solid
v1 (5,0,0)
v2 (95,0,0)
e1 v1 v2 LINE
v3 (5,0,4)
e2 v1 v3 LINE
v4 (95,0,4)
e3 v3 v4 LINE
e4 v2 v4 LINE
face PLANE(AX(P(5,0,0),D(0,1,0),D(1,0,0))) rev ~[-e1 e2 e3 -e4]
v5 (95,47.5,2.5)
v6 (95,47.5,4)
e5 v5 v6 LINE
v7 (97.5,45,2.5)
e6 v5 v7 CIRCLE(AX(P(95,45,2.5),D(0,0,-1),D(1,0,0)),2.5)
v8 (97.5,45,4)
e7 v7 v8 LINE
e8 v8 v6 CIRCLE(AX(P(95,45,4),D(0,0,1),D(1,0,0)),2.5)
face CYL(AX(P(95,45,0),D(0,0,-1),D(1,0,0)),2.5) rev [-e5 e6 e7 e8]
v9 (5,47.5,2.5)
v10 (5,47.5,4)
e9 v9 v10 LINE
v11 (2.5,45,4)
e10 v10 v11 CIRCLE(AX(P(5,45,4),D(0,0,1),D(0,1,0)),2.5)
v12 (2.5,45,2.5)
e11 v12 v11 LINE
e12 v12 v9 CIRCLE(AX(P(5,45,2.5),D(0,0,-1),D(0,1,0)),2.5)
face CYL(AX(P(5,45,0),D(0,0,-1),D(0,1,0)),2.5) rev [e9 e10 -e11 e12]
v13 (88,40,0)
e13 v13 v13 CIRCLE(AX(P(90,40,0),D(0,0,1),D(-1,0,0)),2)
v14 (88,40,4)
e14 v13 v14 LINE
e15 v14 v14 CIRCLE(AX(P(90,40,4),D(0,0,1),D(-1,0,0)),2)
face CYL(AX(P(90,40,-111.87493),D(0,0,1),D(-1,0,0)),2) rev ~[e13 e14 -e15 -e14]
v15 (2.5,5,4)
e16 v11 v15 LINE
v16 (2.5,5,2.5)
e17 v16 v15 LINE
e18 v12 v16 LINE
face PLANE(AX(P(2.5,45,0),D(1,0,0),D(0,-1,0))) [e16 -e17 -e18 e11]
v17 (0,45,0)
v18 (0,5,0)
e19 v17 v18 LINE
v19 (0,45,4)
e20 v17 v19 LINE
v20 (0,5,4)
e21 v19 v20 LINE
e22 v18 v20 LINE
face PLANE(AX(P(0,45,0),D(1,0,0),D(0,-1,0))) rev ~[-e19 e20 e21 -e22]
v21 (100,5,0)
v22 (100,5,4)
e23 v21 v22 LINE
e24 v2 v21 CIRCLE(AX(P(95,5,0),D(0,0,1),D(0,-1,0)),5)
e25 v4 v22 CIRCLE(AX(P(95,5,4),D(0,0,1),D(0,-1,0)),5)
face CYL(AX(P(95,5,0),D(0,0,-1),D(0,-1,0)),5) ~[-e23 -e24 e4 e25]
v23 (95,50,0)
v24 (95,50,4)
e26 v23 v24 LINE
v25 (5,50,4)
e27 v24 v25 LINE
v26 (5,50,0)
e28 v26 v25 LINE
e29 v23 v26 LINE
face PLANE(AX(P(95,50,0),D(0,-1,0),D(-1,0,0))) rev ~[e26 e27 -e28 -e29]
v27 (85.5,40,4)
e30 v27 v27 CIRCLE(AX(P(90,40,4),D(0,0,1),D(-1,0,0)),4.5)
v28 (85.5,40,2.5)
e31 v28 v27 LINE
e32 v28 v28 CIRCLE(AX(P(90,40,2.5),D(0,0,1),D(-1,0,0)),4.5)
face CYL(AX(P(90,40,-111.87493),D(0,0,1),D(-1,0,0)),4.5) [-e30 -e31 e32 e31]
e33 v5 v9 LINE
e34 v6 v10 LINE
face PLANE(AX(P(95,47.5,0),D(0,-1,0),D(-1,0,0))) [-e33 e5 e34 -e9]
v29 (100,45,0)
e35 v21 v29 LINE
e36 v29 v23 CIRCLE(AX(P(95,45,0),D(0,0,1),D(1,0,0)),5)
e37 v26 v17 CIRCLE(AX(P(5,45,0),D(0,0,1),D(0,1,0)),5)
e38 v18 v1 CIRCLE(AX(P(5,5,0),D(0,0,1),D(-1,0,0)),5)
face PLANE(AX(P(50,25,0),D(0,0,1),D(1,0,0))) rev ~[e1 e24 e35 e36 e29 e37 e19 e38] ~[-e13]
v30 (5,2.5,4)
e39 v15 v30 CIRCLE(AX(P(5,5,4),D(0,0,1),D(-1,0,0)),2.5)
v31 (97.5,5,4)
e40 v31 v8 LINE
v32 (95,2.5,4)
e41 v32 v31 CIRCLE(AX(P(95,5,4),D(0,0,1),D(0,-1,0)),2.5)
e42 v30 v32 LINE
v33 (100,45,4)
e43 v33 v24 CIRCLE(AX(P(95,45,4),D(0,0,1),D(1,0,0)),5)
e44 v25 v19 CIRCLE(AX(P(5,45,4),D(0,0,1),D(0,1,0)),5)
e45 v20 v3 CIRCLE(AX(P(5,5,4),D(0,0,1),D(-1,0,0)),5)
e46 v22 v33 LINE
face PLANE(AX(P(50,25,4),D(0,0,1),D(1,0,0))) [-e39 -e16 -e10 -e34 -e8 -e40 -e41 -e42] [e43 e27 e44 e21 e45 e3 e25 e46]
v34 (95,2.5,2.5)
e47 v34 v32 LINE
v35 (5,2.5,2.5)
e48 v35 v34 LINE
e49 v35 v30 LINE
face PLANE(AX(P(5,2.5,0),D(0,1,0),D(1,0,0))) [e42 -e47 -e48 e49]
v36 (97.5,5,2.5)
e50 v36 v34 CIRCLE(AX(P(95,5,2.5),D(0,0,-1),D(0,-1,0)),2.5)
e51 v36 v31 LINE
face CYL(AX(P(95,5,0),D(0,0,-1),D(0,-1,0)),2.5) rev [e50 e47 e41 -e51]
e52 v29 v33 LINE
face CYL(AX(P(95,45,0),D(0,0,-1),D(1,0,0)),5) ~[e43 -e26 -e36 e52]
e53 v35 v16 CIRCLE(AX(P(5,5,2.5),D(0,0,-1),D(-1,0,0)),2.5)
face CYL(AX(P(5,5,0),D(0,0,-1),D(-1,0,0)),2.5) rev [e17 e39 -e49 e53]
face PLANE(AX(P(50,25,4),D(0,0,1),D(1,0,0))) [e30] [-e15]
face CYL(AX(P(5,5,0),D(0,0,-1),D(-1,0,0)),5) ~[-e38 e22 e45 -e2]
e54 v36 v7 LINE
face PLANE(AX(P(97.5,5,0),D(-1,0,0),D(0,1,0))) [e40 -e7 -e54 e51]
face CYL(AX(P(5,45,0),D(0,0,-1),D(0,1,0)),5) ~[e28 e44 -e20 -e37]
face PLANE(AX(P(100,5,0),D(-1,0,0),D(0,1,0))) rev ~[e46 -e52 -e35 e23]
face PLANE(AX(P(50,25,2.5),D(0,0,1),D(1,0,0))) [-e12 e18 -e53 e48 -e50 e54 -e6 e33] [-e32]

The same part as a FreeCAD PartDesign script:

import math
import FreeCAD as App
import Part
import Sketcher


def faces_at(feature, points):
    """Names of the faces that lie closest to the given points."""
    faces = feature.Shape.Faces
    near = lambda p: min(range(len(faces)), key=lambda i: faces[i].distToShape(Part.Vertex(*p))[0])
    return sorted({f"Face{near(p) + 1}" for p in points})

doc = App.newDocument("Part")
params = doc.addObject("Spreadsheet::Sheet", "Params")
for row, (alias, value) in enumerate([
    ("sketch1_radius", "5 mm"),
    ("sketch1_width", "90 mm"),
    ("sketch1_height", "40 mm"),
    ("pad1_length", "4 mm"),
    ("sketch2_diameter", "4 mm"),
    ("hole_diameter", "4 mm"),
    ("thickness_wall", "2.5 mm"),
], start=1):
    params.set(f"A{row}", alias)
    params.set(f"B{row}", "=" + value)
    params.setAlias(f"B{row}", alias)

body = doc.addObject("PartDesign::Body", "Body")

sketch1 = body.newObject("Sketcher::SketchObject", "Sketch")
sketch1.AttachmentSupport = (doc.getObject("XY_Plane"), [""])
sketch1.MapMode = "FlatFace"
sketch1.addGeometry([
    Part.ArcOfCircle(Part.Circle(App.Vector(5, 5, 0), App.Vector(0, 0, 1), 5), math.radians(180), math.radians(270)),
    Part.LineSegment(App.Vector(5, 0, 0), App.Vector(95, 0, 0)),
    Part.ArcOfCircle(Part.Circle(App.Vector(95, 5, 0), App.Vector(0, 0, 1), 5), math.radians(-90), math.radians(0)),
    Part.LineSegment(App.Vector(100, 5, 0), App.Vector(100, 45, 0)),
    Part.ArcOfCircle(Part.Circle(App.Vector(95, 45, 0), App.Vector(0, 0, 1), 5), math.radians(0), math.radians(90)),
    Part.LineSegment(App.Vector(95, 50, 0), App.Vector(5, 50, 0)),
    Part.ArcOfCircle(Part.Circle(App.Vector(5, 45, 0), App.Vector(0, 0, 1), 5), math.radians(90), math.radians(180)),
    Part.LineSegment(App.Vector(0, 45, 0), App.Vector(0, 5, 0)),
], False)
sketch1.addConstraint([
    Sketcher.Constraint("Tangent", 0, 2, 1, 1),
    Sketcher.Constraint("Tangent", 1, 2, 2, 1),
    Sketcher.Constraint("Tangent", 2, 2, 3, 1),
    Sketcher.Constraint("Tangent", 3, 2, 4, 1),
    Sketcher.Constraint("Tangent", 4, 2, 5, 1),
    Sketcher.Constraint("Tangent", 5, 2, 6, 1),
    Sketcher.Constraint("Tangent", 6, 2, 7, 1),
    Sketcher.Constraint("Tangent", 7, 2, 0, 1),
    Sketcher.Constraint("Horizontal", 1),
    Sketcher.Constraint("Vertical", 3),
    Sketcher.Constraint("Horizontal", 5),
    Sketcher.Constraint("Vertical", 7),
    Sketcher.Constraint("Equal", 0, 2),
    Sketcher.Constraint("Equal", 2, 4),
    Sketcher.Constraint("Equal", 4, 6),
    Sketcher.Constraint("PointOnObject", 0, 2, -1),
    Sketcher.Constraint("PointOnObject", 6, 2, -2),
    Sketcher.Constraint("Radius", 0, 5.0),
    Sketcher.Constraint("DistanceX", 1, 1, 1, 2, 90.0),
    Sketcher.Constraint("DistanceY", 3, 1, 3, 2, 40.0),
])
sketch1.setExpression("Constraints[17]", "Params.sketch1_radius")
sketch1.setExpression("Constraints[18]", "Params.sketch1_width")
sketch1.setExpression("Constraints[19]", "Params.sketch1_height")
pad1 = body.newObject("PartDesign::Pad", "Pad")
pad1.Profile = sketch1
pad1.setExpression("Length", "Params.pad1_length")

sketch2 = body.newObject("Sketcher::SketchObject", "Sketch001")
sketch2.AttachmentSupport = (doc.getObject("XY_Plane"), [""])
sketch2.MapMode = "FlatFace"
sketch2.addGeometry(Part.Circle(App.Vector(90, 40, 0), App.Vector(0, 0, 1), 2), False)
sketch2.addConstraint([
    Sketcher.Constraint("Diameter", 0, 4.0),
    Sketcher.Constraint("DistanceX", -1, 1, 0, 3, 90.0),
    Sketcher.Constraint("DistanceY", -1, 1, 0, 3, 40.0),
])
sketch2.setExpression("Constraints[0]", "Params.sketch2_diameter")
doc.recompute()
hole = body.newObject("PartDesign::Hole", "Hole")
hole.Profile = sketch2
hole.ThreadType = "None"
hole.setExpression("Diameter", "Params.hole_diameter")
hole.DepthType = "ThroughAll"
hole.Reversed = True
doc.recompute()

thickness = body.newObject("PartDesign::Thickness", "Thickness")
thickness.Base = (hole, faces_at(hole, [(50, 25, 4)]))
thickness.setExpression("Value", "Params.thickness_wall")
thickness.Reversed = True
thickness.Join = "Arc"

doc.recompute()
